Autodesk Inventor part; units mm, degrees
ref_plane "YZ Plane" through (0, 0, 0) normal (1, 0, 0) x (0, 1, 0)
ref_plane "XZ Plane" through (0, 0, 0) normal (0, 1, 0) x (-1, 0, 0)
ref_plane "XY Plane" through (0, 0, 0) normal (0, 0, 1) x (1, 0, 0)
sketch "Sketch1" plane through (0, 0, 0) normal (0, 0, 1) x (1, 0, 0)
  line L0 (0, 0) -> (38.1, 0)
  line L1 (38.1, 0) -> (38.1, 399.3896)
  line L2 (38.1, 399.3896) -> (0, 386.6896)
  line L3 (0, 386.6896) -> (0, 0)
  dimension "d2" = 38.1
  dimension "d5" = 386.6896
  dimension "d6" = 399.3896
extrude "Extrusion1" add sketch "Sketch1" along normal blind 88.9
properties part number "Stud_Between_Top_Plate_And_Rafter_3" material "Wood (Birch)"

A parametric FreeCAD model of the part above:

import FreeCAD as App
import Part
import Sketcher

V = App.Vector
Q = App.Units.Quantity


def add_polygon(sketch, points):
    """Adds a closed chain of lines whose ends are joined by coincident constraints."""
    first, n = sketch.GeometryCount, len(points)
    for a, b in zip(points, points[1:] + points[:1]):
        sketch.addGeometry(Part.LineSegment(App.Vector(*a, 0), App.Vector(*b, 0)), False)
    for i in range(n):
        sketch.addConstraint(Sketcher.Constraint("Coincident", first + i, 2, first + (i + 1) % n, 1))

doc = App.newDocument("Part")
body = doc.addObject("PartDesign::Body", "Body")

# Sketch on XY plane
sketch1 = body.newObject("Sketcher::SketchObject", "Sketch")
sketch1.AttachmentSupport = (doc.getObject("XY_Plane"), [""])
sketch1.MapMode = "FlatFace"
add_polygon(sketch1, [(0, 387), (0, 0), (38, 0), (38, 399)])  # lines 0-3
sketch1.addConstraint([
    Sketcher.Constraint("Vertical", 0),
    Sketcher.Constraint("Horizontal", 1),
    Sketcher.Constraint("Vertical", 2),
    Sketcher.Constraint("Coincident", 0, 2, -1, 1),
    Sketcher.Constraint("DistanceX", 1, 1, 1, 2, Q("1.5 in")),
    Sketcher.Constraint("DistanceY", 0, 2, 0, 1, Q("15.224 in")),
    Sketcher.Constraint("DistanceY", 2, 1, 2, 2, Q("15.724 in")),
])
pad1 = body.newObject("PartDesign::Pad", "Pad")
pad1.Profile = sketch1
pad1.Length = Q("3.5 in")

doc.recompute()
